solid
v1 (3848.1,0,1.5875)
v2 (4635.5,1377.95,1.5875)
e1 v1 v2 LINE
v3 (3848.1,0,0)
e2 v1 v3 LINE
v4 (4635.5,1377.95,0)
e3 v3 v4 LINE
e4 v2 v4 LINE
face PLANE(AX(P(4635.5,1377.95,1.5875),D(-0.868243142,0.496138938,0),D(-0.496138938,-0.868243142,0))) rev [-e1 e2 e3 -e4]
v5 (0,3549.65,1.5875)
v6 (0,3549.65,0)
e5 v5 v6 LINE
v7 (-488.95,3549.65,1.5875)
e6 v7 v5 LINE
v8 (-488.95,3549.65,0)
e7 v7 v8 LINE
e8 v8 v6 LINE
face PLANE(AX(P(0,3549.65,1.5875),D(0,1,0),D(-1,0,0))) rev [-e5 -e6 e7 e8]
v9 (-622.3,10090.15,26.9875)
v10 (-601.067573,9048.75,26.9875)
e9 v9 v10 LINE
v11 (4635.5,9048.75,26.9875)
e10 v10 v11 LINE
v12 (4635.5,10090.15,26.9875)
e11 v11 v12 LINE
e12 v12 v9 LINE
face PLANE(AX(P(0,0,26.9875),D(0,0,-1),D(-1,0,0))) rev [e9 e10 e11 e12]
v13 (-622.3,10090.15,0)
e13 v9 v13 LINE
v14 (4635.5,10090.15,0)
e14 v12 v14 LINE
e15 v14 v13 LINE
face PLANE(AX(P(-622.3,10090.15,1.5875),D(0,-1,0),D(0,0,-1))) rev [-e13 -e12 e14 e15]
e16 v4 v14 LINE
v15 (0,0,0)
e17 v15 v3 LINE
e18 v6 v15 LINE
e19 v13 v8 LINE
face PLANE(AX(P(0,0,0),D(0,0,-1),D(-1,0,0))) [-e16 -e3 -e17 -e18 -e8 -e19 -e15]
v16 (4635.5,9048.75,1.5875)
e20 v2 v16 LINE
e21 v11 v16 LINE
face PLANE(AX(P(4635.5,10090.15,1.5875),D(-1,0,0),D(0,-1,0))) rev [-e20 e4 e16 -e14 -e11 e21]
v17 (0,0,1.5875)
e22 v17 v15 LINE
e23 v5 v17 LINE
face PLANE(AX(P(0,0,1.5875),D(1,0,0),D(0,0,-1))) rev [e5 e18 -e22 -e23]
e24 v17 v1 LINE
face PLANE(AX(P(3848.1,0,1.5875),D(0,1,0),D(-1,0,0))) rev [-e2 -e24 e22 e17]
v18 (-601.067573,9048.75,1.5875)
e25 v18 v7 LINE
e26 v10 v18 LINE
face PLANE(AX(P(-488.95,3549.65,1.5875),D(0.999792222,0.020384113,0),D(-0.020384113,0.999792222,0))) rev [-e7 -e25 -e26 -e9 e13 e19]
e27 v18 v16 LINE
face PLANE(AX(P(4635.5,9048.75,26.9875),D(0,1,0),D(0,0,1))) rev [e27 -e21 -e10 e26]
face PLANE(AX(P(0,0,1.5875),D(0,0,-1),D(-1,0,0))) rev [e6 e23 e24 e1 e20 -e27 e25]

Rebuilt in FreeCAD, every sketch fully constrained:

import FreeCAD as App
import Part
import Sketcher

V = App.Vector
Q = App.Units.Quantity


def add_polygon(sketch, points):
    """Adds a closed chain of lines whose ends are joined by coincident constraints."""
    first, n = sketch.GeometryCount, len(points)
    for a, b in zip(points, points[1:] + points[:1]):
        sketch.addGeometry(Part.LineSegment(App.Vector(*a, 0), App.Vector(*b, 0)), False)
    for i in range(n):
        sketch.addConstraint(Sketcher.Constraint("Coincident", first + i, 2, first + (i + 1) % n, 1))

doc = App.newDocument("Part")
body = doc.addObject("PartDesign::Body", "Body")

# Sketch on XY plane
sketch1 = body.newObject("Sketcher::SketchObject", "Sketch")
sketch1.AttachmentSupport = (doc.getObject("XY_Plane"), [""])
sketch1.MapMode = "FlatFace"
add_polygon(sketch1, [(0, 3550), (0, 0), (3848, 0), (4636, 1378), (4636, 10090), (-622, 10090), (-489, 3550)])  # lines 0-6
sketch1.addConstraint(Sketcher.Constraint("Vertical", 0))
sketch1.addConstraint(Sketcher.Constraint("Horizontal", 1))
sketch1.addConstraint(Sketcher.Constraint("Vertical", 3))
sketch1.addConstraint(Sketcher.Constraint("Horizontal", 4))
sketch1.addConstraint(Sketcher.Constraint("Horizontal", 6))
sketch1.addConstraint(Sketcher.Constraint("Coincident", 0, 2, -1, 1))
sketch1.addConstraint(Sketcher.Constraint("DistanceX", 4, 2, 4, 1, Q("207 in")))
sketch1.addConstraint(Sketcher.Constraint("DistanceY", 3, 1, 3, 2, Q("343 in")))
sketch1.addConstraint(Sketcher.Constraint("DistanceX", 1, 1, 1, 2, Q("151.5 in")))
sketch1.addConstraint(Sketcher.Constraint("DistanceX", 1, 2, 2, 2, Q("31 in")))
sketch1.addConstraint(Sketcher.Constraint("DistanceX", 6, 1, 6, 2, Q("19.25 in")))
sketch1.addConstraint(Sketcher.Constraint("DistanceY", 0, 2, 0, 1, Q("139.75 in")))
sketch1.addConstraint(Sketcher.Constraint("DistanceY", 2, 2, 5, 2, Q("85.5 in")))
pad1 = body.newObject("PartDesign::Pad", "Pad")
pad1.Profile = sketch1
pad1.Length = Q("0.0625 in")

# Sketch on XY plane
sketch2 = body.newObject("Sketcher::SketchObject", "Sketch001")
sketch2.AttachmentSupport = (doc.getObject("XY_Plane"), [""])
sketch2.MapMode = "FlatFace"
sketch2.AttachmentOffset = App.Placement(V(0, 0, 0.0625 * 25.4), App.Rotation())
add_polygon(sketch2, [(-601, 9049), (4636, 9049), (4636, 10090), (-622, 10090)])  # lines 0-3
sketch2.addConstraint(Sketcher.Constraint("Horizontal", 0))
sketch2.addConstraint(Sketcher.Constraint("Vertical", 1))
sketch2.addConstraint(Sketcher.Constraint("Horizontal", 2))
sketch2.addConstraint(Sketcher.Constraint("DistanceX", 2, 2, 2, 1, Q("207 in")))
sketch2.addConstraint(Sketcher.Constraint("DistanceY", 1, 1, 1, 2, Q("41 in")))
sketch2.addConstraint(Sketcher.Constraint("DistanceX", -1, 1, 0, 2, Q("182.5 in")))
sketch2.addConstraint(Sketcher.Constraint("DistanceY", -1, 1, 0, 2, Q("356.25 in")))
sketch2.addConstraint(Sketcher.Constraint("DistanceX", 0, 1, 0, 2, 5236.567573))
pad2 = body.newObject("PartDesign::Pad", "Pad001")
pad2.Profile = sketch2
pad2.Length = Q("1 in")

doc.recompute()
